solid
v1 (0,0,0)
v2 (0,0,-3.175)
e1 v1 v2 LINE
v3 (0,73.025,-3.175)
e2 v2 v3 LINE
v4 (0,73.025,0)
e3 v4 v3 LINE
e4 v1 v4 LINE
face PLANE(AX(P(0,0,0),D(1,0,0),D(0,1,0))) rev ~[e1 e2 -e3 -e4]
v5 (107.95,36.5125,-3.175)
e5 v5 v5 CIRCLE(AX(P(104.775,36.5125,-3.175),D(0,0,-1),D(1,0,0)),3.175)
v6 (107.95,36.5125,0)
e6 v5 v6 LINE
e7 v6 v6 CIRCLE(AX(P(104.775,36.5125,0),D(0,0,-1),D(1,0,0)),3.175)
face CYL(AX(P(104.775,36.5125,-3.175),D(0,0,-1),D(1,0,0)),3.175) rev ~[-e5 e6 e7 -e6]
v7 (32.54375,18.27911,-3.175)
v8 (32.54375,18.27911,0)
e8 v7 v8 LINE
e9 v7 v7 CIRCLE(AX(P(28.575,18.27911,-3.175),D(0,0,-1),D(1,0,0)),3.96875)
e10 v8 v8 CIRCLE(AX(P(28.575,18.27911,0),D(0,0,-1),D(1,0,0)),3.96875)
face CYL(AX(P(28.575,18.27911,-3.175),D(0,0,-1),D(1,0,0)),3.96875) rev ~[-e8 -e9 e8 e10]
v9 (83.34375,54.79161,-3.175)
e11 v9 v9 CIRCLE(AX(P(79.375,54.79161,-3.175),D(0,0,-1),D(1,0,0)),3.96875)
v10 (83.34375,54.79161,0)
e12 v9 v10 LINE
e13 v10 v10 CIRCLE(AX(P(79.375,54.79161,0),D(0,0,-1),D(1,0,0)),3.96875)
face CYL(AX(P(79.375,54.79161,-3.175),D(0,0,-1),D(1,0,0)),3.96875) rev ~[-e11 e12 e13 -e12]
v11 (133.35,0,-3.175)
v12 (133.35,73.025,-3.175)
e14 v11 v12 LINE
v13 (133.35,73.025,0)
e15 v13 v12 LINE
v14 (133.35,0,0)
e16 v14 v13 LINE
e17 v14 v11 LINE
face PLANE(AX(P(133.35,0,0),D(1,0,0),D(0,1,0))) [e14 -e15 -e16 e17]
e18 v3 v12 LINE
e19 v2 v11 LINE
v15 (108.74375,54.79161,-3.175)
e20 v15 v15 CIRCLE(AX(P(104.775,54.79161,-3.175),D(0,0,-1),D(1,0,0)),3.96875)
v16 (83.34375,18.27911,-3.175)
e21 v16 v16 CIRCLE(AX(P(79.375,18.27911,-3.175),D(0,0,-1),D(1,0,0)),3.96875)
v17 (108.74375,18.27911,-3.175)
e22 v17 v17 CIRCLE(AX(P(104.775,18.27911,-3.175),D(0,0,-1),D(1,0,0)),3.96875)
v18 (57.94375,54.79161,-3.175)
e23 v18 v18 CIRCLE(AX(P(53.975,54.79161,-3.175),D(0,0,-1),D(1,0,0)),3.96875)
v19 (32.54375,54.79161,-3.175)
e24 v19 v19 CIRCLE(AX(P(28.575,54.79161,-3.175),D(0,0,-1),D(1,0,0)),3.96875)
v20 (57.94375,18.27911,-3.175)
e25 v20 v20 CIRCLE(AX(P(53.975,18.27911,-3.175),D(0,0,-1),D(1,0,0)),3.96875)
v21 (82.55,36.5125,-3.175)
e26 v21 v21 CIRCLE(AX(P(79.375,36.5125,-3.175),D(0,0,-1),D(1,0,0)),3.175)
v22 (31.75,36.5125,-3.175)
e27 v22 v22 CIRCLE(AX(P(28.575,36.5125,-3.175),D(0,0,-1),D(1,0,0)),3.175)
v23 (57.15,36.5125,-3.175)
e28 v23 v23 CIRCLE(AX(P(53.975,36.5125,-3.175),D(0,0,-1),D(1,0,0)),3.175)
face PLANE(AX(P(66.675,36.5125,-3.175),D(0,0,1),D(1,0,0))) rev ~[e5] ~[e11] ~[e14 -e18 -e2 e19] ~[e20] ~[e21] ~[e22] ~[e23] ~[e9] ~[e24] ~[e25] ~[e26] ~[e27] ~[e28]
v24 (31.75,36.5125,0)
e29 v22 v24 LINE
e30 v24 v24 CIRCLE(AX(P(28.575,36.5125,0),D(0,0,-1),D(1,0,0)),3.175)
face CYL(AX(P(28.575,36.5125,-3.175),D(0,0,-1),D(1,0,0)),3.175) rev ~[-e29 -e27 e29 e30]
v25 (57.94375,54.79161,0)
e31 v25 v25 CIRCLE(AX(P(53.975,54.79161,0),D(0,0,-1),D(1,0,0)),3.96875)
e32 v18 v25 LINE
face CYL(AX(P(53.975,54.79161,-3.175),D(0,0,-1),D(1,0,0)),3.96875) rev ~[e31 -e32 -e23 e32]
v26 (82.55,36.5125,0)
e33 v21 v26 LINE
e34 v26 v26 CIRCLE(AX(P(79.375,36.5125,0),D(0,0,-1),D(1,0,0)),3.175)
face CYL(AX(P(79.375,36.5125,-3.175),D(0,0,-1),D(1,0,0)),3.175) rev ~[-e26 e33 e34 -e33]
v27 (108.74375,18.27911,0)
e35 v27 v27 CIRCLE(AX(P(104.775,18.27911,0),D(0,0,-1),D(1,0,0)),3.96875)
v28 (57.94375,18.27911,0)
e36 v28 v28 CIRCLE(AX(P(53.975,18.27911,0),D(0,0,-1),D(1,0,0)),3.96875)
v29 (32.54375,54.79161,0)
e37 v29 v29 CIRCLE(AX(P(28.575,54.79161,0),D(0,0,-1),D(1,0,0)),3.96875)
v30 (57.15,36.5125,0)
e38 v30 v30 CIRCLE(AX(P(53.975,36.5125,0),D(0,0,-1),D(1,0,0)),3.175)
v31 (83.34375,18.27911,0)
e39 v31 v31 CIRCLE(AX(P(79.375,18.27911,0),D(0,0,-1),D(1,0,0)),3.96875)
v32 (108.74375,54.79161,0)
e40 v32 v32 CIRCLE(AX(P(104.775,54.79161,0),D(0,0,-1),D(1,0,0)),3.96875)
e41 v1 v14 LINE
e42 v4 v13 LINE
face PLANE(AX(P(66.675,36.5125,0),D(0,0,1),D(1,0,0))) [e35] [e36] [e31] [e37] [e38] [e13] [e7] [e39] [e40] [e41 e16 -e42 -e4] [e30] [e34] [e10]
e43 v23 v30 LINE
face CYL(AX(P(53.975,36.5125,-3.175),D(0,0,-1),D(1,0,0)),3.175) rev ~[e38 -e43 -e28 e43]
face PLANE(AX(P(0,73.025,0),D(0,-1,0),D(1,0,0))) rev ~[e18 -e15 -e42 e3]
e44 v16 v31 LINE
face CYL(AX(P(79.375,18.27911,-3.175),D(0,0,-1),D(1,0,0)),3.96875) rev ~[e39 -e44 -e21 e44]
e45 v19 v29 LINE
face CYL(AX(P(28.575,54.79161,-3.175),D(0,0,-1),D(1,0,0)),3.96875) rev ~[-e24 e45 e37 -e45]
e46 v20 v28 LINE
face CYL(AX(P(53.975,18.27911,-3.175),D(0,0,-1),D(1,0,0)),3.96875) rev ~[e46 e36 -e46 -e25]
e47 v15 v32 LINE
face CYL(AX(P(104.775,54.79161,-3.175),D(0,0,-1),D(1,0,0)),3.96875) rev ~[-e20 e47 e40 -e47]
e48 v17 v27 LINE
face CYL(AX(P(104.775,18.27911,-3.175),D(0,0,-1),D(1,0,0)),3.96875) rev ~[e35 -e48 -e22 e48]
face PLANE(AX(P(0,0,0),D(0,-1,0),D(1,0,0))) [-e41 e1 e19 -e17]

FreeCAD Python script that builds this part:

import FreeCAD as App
import Part
import Sketcher
from FreeCAD import Vector
Q = App.Units.Quantity


def add_polygon(sketch, points):
    """Adds a closed chain of lines whose ends are joined by coincident constraints."""
    first, n = sketch.GeometryCount, len(points)
    for a, b in zip(points, points[1:] + points[:1]):
        sketch.addGeometry(Part.LineSegment(App.Vector(*a, 0), App.Vector(*b, 0)), False)
    for i in range(n):
        sketch.addConstraint(Sketcher.Constraint("Coincident", first + i, 2, first + (i + 1) % n, 1))

doc = App.newDocument("Part")
body = doc.addObject("PartDesign::Body", "Body")

sketch1 = doc.addObject("Sketcher::SketchObject", "Sketch")
body.addObject(sketch1)
sketch1.AttachmentSupport = (doc.XY_Plane, [""])
sketch1.MapMode = "FlatFace"
add_polygon(sketch1, [(0, 73), (0, 0), (133, 0), (133, 73)])
sketch1.addConstraint(Sketcher.Constraint("Vertical", 0))
sketch1.addConstraint(Sketcher.Constraint("Horizontal", 1))
sketch1.addConstraint(Sketcher.Constraint("Vertical", 2))
sketch1.addConstraint(Sketcher.Constraint("Horizontal", 3))
sketch1.addConstraint(Sketcher.Constraint("Coincident", 0, 2, -1, 1))
sketch1.addConstraint(Sketcher.Constraint("DistanceX", 1, 1, 1, 2, Q("5.25 in")))
sketch1.addConstraint(Sketcher.Constraint("DistanceY", 0, 2, 0, 1, Q("2.875 in")))
pad1 = doc.addObject("PartDesign::Pad", "Pad")
body.addObject(pad1)
pad1.Profile = sketch1
pad1.Length = Q("0.125 in")
pad1.Reversed = True

sketch2 = doc.addObject("Sketcher::SketchObject", "Sketch001")
body.addObject(sketch2)
sketch2.AttachmentSupport = (doc.XY_Plane, [""])
sketch2.MapMode = "FlatFace"
sketch2.AttachmentOffset = App.Placement(Vector(0, 0, -0.125 * 25.4), App.Rotation())
sketch2.addGeometry(Part.Circle(Vector(28.6, 36.5, 0), Vector(0, 0, 1), 3.2), False)
sketch2.addGeometry(Part.Circle(Vector(54, 36.5, 0), Vector(0, 0, 1), 3.2), False)
sketch2.addGeometry(Part.Circle(Vector(79.4, 36.5, 0), Vector(0, 0, 1), 3.2), False)
sketch2.addGeometry(Part.Circle(Vector(104.8, 36.5, 0), Vector(0, 0, 1), 3.2), False)
sketch2.addConstraint(Sketcher.Constraint("Equal", 0, 1))
sketch2.addConstraint(Sketcher.Constraint("Equal", 1, 2))
sketch2.addConstraint(Sketcher.Constraint("Equal", 2, 3))
sketch2.addConstraint(Sketcher.Constraint("Horizontal", 0, 3, 1, 3))
sketch2.addConstraint(Sketcher.Constraint("Horizontal", 1, 3, 2, 3))
sketch2.addConstraint(Sketcher.Constraint("Horizontal", 2, 3, 3, 3))
sketch2.addConstraint(Sketcher.Constraint("Diameter", 0, Q("0.25 in")))
sketch2.addConstraint(Sketcher.Constraint("DistanceX", 0, 3, 1, 3, Q("1 in")))
sketch2.addConstraint(Sketcher.Constraint("DistanceX", 1, 3, 2, 3, Q("1 in")))
sketch2.addConstraint(Sketcher.Constraint("DistanceX", 2, 3, 3, 3, Q("1 in")))
sketch2.addConstraint(Sketcher.Constraint("DistanceX", -1, 1, 0, 3, Q("1.125 in")))
sketch2.addConstraint(Sketcher.Constraint("DistanceY", -1, 1, 0, 3, Q("1.4375 in")))
pocket1 = doc.addObject("PartDesign::Pocket", "Pocket")
body.addObject(pocket1)
pocket1.Profile = sketch2
pocket1.Type = "ThroughAll"
pocket1.Reversed = True

sketch3 = doc.addObject("Sketcher::SketchObject", "Sketch002")
body.addObject(sketch3)
sketch3.AttachmentSupport = (doc.XY_Plane, [""])
sketch3.MapMode = "FlatFace"
sketch3.AttachmentOffset = App.Placement(Vector(0, 0, -0.125 * 25.4), App.Rotation())
sketch3.addGeometry(Part.Circle(Vector(28.6, 54.8, 0), Vector(0, 0, 1), 4), False)
sketch3.addGeometry(Part.Circle(Vector(54, 54.8, 0), Vector(0, 0, 1), 4), False)
sketch3.addGeometry(Part.Circle(Vector(79.4, 54.8, 0), Vector(0, 0, 1), 4), False)
sketch3.addGeometry(Part.Circle(Vector(104.8, 54.8, 0), Vector(0, 0, 1), 4), False)
sketch3.addGeometry(Part.Circle(Vector(104.8, 18.3, 0), Vector(0, 0, 1), 4), False)
sketch3.addGeometry(Part.Circle(Vector(79.4, 18.3, 0), Vector(0, 0, 1), 4), False)
sketch3.addGeometry(Part.Circle(Vector(54, 18.3, 0), Vector(0, 0, 1), 4), False)
sketch3.addGeometry(Part.Circle(Vector(28.6, 18.3, 0), Vector(0, 0, 1), 4), False)
sketch3.addConstraint(Sketcher.Constraint("Equal", 0, 1))
sketch3.addConstraint(Sketcher.Constraint("Equal", 1, 2))
sketch3.addConstraint(Sketcher.Constraint("Equal", 2, 3))
sketch3.addConstraint(Sketcher.Constraint("Equal", 3, 4))
sketch3.addConstraint(Sketcher.Constraint("Equal", 4, 5))
sketch3.addConstraint(Sketcher.Constraint("Equal", 5, 6))
sketch3.addConstraint(Sketcher.Constraint("Equal", 6, 7))
sketch3.addConstraint(Sketcher.Constraint("Horizontal", 0, 3, 1, 3))
sketch3.addConstraint(Sketcher.Constraint("Horizontal", 1, 3, 2, 3))
sketch3.addConstraint(Sketcher.Constraint("Horizontal", 2, 3, 3, 3))
sketch3.addConstraint(Sketcher.Constraint("Horizontal", 4, 3, 5, 3))
sketch3.addConstraint(Sketcher.Constraint("Horizontal", 5, 3, 6, 3))
sketch3.addConstraint(Sketcher.Constraint("Horizontal", 6, 3, 7, 3))
sketch3.addConstraint(Sketcher.Constraint("Vertical", 3, 3, 4, 3))
sketch3.addConstraint(Sketcher.Constraint("Vertical", 2, 3, 5, 3))
sketch3.addConstraint(Sketcher.Constraint("Vertical", 1, 3, 6, 3))
sketch3.addConstraint(Sketcher.Constraint("Vertical", 0, 3, 7, 3))
sketch3.addConstraint(Sketcher.Constraint("Diameter", 0, Q("0.3125 in")))
sketch3.addConstraint(Sketcher.Constraint("DistanceX", 0, 3, 1, 3, Q("1 in")))
sketch3.addConstraint(Sketcher.Constraint("DistanceX", 1, 3, 2, 3, Q("1 in")))
sketch3.addConstraint(Sketcher.Constraint("DistanceX", 2, 3, 3, 3, Q("1 in")))
sketch3.addConstraint(Sketcher.Constraint("DistanceX", -1, 1, 0, 3, Q("1.125 in")))
sketch3.addConstraint(Sketcher.Constraint("DistanceY", 4, 3, 3, 3, Q("1.4375 in")))
sketch3.addConstraint(Sketcher.Constraint("DistanceY", -1, 1, 0, 3, Q("54.79161 mm")))
pocket2 = doc.addObject("PartDesign::Pocket", "Pocket001")
body.addObject(pocket2)
pocket2.Profile = sketch3
pocket2.Type = "ThroughAll"
pocket2.Reversed = True

doc.recompute()
